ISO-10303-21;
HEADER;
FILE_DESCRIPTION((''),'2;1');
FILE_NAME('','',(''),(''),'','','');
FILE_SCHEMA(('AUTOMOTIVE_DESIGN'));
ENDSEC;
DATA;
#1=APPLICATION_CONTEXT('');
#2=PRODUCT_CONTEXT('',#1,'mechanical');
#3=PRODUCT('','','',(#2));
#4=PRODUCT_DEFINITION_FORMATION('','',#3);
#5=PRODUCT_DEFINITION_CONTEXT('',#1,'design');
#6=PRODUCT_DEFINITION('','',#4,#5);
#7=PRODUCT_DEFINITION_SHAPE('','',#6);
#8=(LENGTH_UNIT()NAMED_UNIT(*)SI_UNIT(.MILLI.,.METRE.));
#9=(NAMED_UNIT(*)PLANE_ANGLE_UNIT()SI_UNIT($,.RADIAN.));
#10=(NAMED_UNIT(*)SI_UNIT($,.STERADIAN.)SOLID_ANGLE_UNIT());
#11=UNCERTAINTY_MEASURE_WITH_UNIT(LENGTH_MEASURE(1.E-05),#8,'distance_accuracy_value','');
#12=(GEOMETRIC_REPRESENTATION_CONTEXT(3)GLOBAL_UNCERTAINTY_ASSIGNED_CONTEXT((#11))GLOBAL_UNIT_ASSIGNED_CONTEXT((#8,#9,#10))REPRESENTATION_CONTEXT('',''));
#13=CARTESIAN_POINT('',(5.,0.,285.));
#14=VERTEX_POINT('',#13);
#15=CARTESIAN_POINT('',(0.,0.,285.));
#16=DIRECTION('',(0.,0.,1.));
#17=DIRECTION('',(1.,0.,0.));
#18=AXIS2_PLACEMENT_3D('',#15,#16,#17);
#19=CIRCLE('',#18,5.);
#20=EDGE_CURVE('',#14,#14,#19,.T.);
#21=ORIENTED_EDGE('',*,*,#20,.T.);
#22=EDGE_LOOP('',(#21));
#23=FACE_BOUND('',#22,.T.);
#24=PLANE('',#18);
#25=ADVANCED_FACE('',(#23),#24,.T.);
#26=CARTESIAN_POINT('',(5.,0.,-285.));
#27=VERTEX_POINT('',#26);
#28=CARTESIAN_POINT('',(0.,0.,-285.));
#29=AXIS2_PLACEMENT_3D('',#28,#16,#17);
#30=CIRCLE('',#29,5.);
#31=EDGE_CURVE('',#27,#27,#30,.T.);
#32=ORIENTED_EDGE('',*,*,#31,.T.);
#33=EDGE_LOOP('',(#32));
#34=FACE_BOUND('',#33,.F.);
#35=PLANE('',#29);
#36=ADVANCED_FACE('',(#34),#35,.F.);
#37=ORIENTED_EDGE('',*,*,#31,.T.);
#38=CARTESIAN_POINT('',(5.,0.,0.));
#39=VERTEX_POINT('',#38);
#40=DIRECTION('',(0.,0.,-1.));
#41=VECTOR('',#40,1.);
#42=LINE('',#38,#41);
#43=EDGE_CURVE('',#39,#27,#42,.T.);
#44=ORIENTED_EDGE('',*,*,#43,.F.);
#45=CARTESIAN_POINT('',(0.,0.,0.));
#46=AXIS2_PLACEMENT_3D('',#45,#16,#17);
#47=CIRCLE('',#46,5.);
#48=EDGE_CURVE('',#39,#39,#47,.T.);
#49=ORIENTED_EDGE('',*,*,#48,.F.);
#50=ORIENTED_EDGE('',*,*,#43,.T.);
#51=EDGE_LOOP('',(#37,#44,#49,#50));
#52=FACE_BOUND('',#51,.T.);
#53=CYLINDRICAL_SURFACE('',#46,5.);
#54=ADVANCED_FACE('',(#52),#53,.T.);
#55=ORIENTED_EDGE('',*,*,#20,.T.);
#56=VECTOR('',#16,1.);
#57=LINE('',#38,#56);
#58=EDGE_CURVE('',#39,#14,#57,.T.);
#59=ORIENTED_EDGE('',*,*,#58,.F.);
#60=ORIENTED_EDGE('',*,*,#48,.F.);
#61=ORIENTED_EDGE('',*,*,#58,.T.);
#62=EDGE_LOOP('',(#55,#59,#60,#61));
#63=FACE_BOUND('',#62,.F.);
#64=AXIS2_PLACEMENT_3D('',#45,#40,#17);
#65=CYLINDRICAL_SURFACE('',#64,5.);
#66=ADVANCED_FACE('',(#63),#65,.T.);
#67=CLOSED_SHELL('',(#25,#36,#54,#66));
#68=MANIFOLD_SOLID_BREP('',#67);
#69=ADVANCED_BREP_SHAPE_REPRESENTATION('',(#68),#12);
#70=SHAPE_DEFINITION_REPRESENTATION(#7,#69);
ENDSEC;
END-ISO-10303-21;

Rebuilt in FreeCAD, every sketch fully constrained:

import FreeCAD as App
import Part
import Sketcher

V = App.Vector

doc = App.newDocument("Part")
params = doc.addObject("Spreadsheet::Sheet", "Params")
for row, (alias, value) in enumerate([
    ("sketch1_diameter", "10 mm"),
    ("pad1_length", "570 mm"),
], start=1):
    params.set(f"A{row}", alias)
    params.set(f"B{row}", "=" + value)
    params.setAlias(f"B{row}", alias)

body = doc.addObject("PartDesign::Body", "Body")

# Sketch on XY plane
sketch1 = body.newObject("Sketcher::SketchObject", "Sketch")
sketch1.AttachmentSupport = (doc.getObject("XY_Plane"), [""])
sketch1.MapMode = "FlatFace"
sketch1.addGeometry(Part.Circle(V(0, 0, 0), V(0, 0, 1), 5), False)
sketch1.addConstraint([
    Sketcher.Constraint("Coincident", 0, 3, -1, 1),
    Sketcher.Constraint("Diameter", 0, 10.0),
])
sketch1.setExpression("Constraints[1]", "Params.sketch1_diameter")
pad1 = body.newObject("PartDesign::Pad", "Pad")
pad1.Profile = sketch1
pad1.setExpression("Length", "Params.pad1_length")
pad1.Midplane = True

doc.recompute()
